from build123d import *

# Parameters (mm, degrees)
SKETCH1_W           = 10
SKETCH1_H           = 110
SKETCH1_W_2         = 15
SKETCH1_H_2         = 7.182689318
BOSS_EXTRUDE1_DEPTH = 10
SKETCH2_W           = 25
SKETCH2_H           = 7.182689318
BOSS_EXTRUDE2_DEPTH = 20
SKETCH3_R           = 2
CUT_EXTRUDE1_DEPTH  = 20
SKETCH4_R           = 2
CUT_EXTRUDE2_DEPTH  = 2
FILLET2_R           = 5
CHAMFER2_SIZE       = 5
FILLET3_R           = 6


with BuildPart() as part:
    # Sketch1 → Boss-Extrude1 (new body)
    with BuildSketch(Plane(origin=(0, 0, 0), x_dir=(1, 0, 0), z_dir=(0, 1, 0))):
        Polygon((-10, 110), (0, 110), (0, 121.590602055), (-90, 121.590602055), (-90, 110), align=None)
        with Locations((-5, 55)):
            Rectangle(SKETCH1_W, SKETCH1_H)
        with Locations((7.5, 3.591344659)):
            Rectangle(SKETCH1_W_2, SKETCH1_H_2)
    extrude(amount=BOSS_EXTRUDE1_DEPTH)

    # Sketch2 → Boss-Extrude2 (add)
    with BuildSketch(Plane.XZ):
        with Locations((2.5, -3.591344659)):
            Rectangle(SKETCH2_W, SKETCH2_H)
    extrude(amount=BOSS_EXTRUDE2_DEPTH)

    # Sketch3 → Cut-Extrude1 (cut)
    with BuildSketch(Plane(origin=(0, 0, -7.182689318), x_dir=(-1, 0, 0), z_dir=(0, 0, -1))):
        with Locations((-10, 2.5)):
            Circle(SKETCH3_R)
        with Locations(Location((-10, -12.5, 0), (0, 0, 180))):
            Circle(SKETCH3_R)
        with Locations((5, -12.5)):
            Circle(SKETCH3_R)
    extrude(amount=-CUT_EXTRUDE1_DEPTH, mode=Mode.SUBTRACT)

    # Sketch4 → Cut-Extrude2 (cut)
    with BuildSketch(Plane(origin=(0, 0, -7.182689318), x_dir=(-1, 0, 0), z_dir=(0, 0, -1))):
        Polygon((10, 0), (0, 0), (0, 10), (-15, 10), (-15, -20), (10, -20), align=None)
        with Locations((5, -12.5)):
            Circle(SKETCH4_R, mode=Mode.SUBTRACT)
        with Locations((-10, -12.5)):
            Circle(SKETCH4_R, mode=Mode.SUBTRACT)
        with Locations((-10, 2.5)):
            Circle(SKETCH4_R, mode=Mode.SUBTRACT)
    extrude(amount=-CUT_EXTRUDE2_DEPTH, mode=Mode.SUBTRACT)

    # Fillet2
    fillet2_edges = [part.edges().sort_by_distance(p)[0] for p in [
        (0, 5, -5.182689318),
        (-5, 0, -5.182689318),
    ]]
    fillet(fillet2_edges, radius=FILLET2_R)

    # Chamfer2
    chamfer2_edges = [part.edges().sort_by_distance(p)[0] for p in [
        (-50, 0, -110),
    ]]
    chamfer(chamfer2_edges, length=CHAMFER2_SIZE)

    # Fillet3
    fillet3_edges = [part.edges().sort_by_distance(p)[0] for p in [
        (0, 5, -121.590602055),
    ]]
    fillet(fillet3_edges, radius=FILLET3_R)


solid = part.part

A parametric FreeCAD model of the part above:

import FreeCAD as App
import Part
import Sketcher


def edges_at(feature, points):
    """Names of the edges that pass closest to the given points."""
    edges = feature.Shape.Edges
    near = lambda p: min(range(len(edges)), key=lambda i: edges[i].distToShape(Part.Vertex(*p))[0])
    return sorted({f"Edge{near(p) + 1}" for p in points})

doc = App.newDocument("Part")
params = doc.addObject("Spreadsheet::Sheet", "Params")
for row, (alias, value) in enumerate([
    ("sketch1_width", "90 mm"),
    ("sketch1_width2", "80 mm"),
    ("sketch1_width3", "25 mm"),
    ("sketch1_height", "110 mm"),
    ("pad1_length", "10 mm"),
    ("sketch2_width", "25 mm"),
    ("pad2_length", "20 mm"),
    ("sketch3_diameter", "4 mm"),
    ("pocket1_length", "20 mm"),
    ("sketch4_diameter", "4 mm"),
    ("sketch4_width", "10 mm"),
    ("sketch4_width2", "15 mm"),
    ("sketch4_height", "30 mm"),
    ("pocket2_length", "2 mm"),
    ("fillet_radius", "5 mm"),
    ("chamfer_size", "5 mm"),
    ("fillet2_radius", "6 mm"),
], start=1):
    params.set(f"A{row}", alias)
    params.set(f"B{row}", "=" + value)
    params.setAlias(f"B{row}", alias)

body = doc.addObject("PartDesign::Body", "Body")

sketch1 = body.newObject("Sketcher::SketchObject", "Sketch")
sketch1.AttachmentSupport = (doc.getObject("XZ_Plane"), [""])
sketch1.MapMode = "FlatFace"
sketch1.addGeometry([
    Part.LineSegment(App.Vector(0, -121.590602, 0), App.Vector(-90, -121.590602, 0)),
    Part.LineSegment(App.Vector(-90, -121.590602, 0), App.Vector(-90, -110, 0)),
    Part.LineSegment(App.Vector(-90, -110, 0), App.Vector(-10, -110, 0)),
    Part.LineSegment(App.Vector(-10, -110, 0), App.Vector(-10, 0, 0)),
    Part.LineSegment(App.Vector(-10, 0, 0), App.Vector(15, 0, 0)),
    Part.LineSegment(App.Vector(15, 0, 0), App.Vector(15, -7.182689, 0)),
    Part.LineSegment(App.Vector(15, -7.182689, 0), App.Vector(0, -7.182689, 0)),
    Part.LineSegment(App.Vector(0, -7.182689, 0), App.Vector(0, -121.590602, 0)),
], False)
sketch1.addConstraint([
    Sketcher.Constraint("Coincident", 0, 2, 1, 1),
    Sketcher.Constraint("Coincident", 1, 2, 2, 1),
    Sketcher.Constraint("Coincident", 2, 2, 3, 1),
    Sketcher.Constraint("Coincident", 3, 2, 4, 1),
    Sketcher.Constraint("Coincident", 4, 2, 5, 1),
    Sketcher.Constraint("Coincident", 5, 2, 6, 1),
    Sketcher.Constraint("Coincident", 6, 2, 7, 1),
    Sketcher.Constraint("Coincident", 7, 2, 0, 1),
    Sketcher.Constraint("Horizontal", 0),
    Sketcher.Constraint("Vertical", 1),
    Sketcher.Constraint("Horizontal", 2),
    Sketcher.Constraint("Vertical", 3),
    Sketcher.Constraint("Horizontal", 4),
    Sketcher.Constraint("Vertical", 5),
    Sketcher.Constraint("Horizontal", 6),
    Sketcher.Constraint("Vertical", 7),
    Sketcher.Constraint("PointOnObject", 3, 2, -1),
    Sketcher.Constraint("PointOnObject", 6, 2, -2),
    Sketcher.Constraint("DistanceX", 0, 2, 0, 1, 90.0),
    Sketcher.Constraint("DistanceX", 2, 1, 2, 2, 80.0),
    Sketcher.Constraint("DistanceX", 4, 1, 4, 2, 25.0),
    Sketcher.Constraint("DistanceY", 3, 1, 3, 2, 110.0),
    Sketcher.Constraint("DistanceY", 5, 2, 5, 1, 7.182689),
    Sketcher.Constraint("DistanceY", 1, 1, 1, 2, 11.590602),
])
sketch1.setExpression("Constraints[18]", "Params.sketch1_width")
sketch1.setExpression("Constraints[19]", "Params.sketch1_width2")
sketch1.setExpression("Constraints[20]", "Params.sketch1_width3")
sketch1.setExpression("Constraints[21]", "Params.sketch1_height")
pad1 = body.newObject("PartDesign::Pad", "Pad")
pad1.Profile = sketch1
pad1.setExpression("Length", "Params.pad1_length")
pad1.Reversed = True

sketch2 = body.newObject("Sketcher::SketchObject", "Sketch001")
sketch2.AttachmentSupport = (doc.getObject("XZ_Plane"), [""])
sketch2.MapMode = "FlatFace"
sketch2.addGeometry([
    Part.LineSegment(App.Vector(-10, 0, 0), App.Vector(-10, -7.182689, 0)),
    Part.LineSegment(App.Vector(-10, -7.182689, 0), App.Vector(15, -7.182689, 0)),
    Part.LineSegment(App.Vector(15, -7.182689, 0), App.Vector(15, 0, 0)),
    Part.LineSegment(App.Vector(15, 0, 0), App.Vector(-10, 0, 0)),
], False)
sketch2.addConstraint([
    Sketcher.Constraint("Coincident", 0, 2, 1, 1),
    Sketcher.Constraint("Coincident", 1, 2, 2, 1),
    Sketcher.Constraint("Coincident", 2, 2, 3, 1),
    Sketcher.Constraint("Coincident", 3, 2, 0, 1),
    Sketcher.Constraint("Vertical", 0),
    Sketcher.Constraint("Horizontal", 1),
    Sketcher.Constraint("Vertical", 2),
    Sketcher.Constraint("Horizontal", 3),
    Sketcher.Constraint("PointOnObject", 2, 2, -1),
    Sketcher.Constraint("DistanceX", 1, 1, 1, 2, 25.0),
    Sketcher.Constraint("DistanceX", 0, 2, -1, 1, 10.0),
    Sketcher.Constraint("DistanceY", 0, 2, 0, 1, 7.182689),
])
sketch2.setExpression("Constraints[9]", "Params.sketch2_width")
pad2 = body.newObject("PartDesign::Pad", "Pad001")
pad2.Profile = sketch2
pad2.setExpression("Length", "Params.pad2_length")

sketch3 = body.newObject("Sketcher::SketchObject", "Sketch002")
sketch3.AttachmentSupport = (doc.getObject("XY_Plane"), [""])
sketch3.MapMode = "FlatFace"
sketch3.AttachmentOffset = App.Placement(App.Vector(0, 0, -7.182689), App.Rotation())
sketch3.addGeometry([
    Part.Circle(App.Vector(10, 2.5, 0), App.Vector(0, 0, 1), 2),
    Part.Circle(App.Vector(10, -12.5, 0), App.Vector(0, 0, 1), 2),
    Part.Circle(App.Vector(-5, -12.5, 0), App.Vector(0, 0, 1), 2),
], False)
sketch3.addConstraint([
    Sketcher.Constraint("Equal", 0, 1),
    Sketcher.Constraint("Equal", 1, 2),
    Sketcher.Constraint("Horizontal", 1, 3, 2, 3),
    Sketcher.Constraint("Vertical", 0, 3, 1, 3),
    Sketcher.Constraint("Diameter", 0, 4.0),
    Sketcher.Constraint("DistanceX", -1, 1, 0, 3, 10.0),
    Sketcher.Constraint("DistanceX", 2, 3, -1, 1, 5.0),
    Sketcher.Constraint("DistanceY", 1, 3, 0, 3, 15.0),
    Sketcher.Constraint("DistanceY", -1, 1, 0, 3, 2.5),
])
sketch3.setExpression("Constraints[4]", "Params.sketch3_diameter")
pocket1 = body.newObject("PartDesign::Pocket", "Pocket")
pocket1.Profile = sketch3
pocket1.setExpression("Length", "Params.pocket1_length")
pocket1.Reversed = True

sketch4 = body.newObject("Sketcher::SketchObject", "Sketch003")
sketch4.AttachmentSupport = (doc.getObject("XY_Plane"), [""])
sketch4.MapMode = "FlatFace"
sketch4.AttachmentOffset = App.Placement(App.Vector(0, 0, -7.182689), App.Rotation())
sketch4.addGeometry([
    Part.LineSegment(App.Vector(-10, 0, 0), App.Vector(0, 0, 0)),
    Part.LineSegment(App.Vector(0, 0, 0), App.Vector(0, 10, 0)),
    Part.LineSegment(App.Vector(0, 10, 0), App.Vector(15, 10, 0)),
    Part.LineSegment(App.Vector(15, 10, 0), App.Vector(15, -20, 0)),
    Part.LineSegment(App.Vector(15, -20, 0), App.Vector(-10, -20, 0)),
    Part.LineSegment(App.Vector(-10, -20, 0), App.Vector(-10, 0, 0)),
    Part.Circle(App.Vector(10, -12.5, 0), App.Vector(0, 0, 1), 2),
    Part.Circle(App.Vector(-5, -12.5, 0), App.Vector(0, 0, 1), 2),
    Part.Circle(App.Vector(10, 2.5, 0), App.Vector(0, 0, 1), 2),
], False)
sketch4.addConstraint([
    Sketcher.Constraint("Coincident", 0, 2, 1, 1),
    Sketcher.Constraint("Coincident", 1, 2, 2, 1),
    Sketcher.Constraint("Coincident", 2, 2, 3, 1),
    Sketcher.Constraint("Coincident", 3, 2, 4, 1),
    Sketcher.Constraint("Coincident", 4, 2, 5, 1),
    Sketcher.Constraint("Coincident", 5, 2, 0, 1),
    Sketcher.Constraint("Horizontal", 0),
    Sketcher.Constraint("Vertical", 1),
    Sketcher.Constraint("Horizontal", 2),
    Sketcher.Constraint("Vertical", 3),
    Sketcher.Constraint("Horizontal", 4),
    Sketcher.Constraint("Vertical", 5),
    Sketcher.Constraint("Coincident", 0, 2, -1, 1),
    Sketcher.Constraint("Equal", 6, 7),
    Sketcher.Constraint("Equal", 7, 8),
    Sketcher.Constraint("Horizontal", 6, 3, 7, 3),
    Sketcher.Constraint("Vertical", 6, 3, 8, 3),
    Sketcher.Constraint("Equal", 0, 1),
    Sketcher.Constraint("Diameter", 6, 4.0),
    Sketcher.Constraint("DistanceX", 0, 1, 0, 2, 10.0),
    Sketcher.Constraint("DistanceX", 2, 1, 2, 2, 15.0),
    Sketcher.Constraint("DistanceY", 3, 2, 3, 1, 30.0),
    Sketcher.Constraint("DistanceX", -1, 1, 6, 3, 10.0),
    Sketcher.Constraint("DistanceX", 7, 3, -1, 1, 5.0),
    Sketcher.Constraint("DistanceY", 6, 3, 8, 3, 15.0),
    Sketcher.Constraint("DistanceY", 6, 3, -1, 1, 12.5),
])
sketch4.setExpression("Constraints[18]", "Params.sketch4_diameter")
sketch4.setExpression("Constraints[19]", "Params.sketch4_width")
sketch4.setExpression("Constraints[20]", "Params.sketch4_width2")
sketch4.setExpression("Constraints[21]", "Params.sketch4_height")
pocket2 = body.newObject("PartDesign::Pocket", "Pocket001")
pocket2.Profile = sketch4
pocket2.setExpression("Length", "Params.pocket2_length")
pocket2.Reversed = True
doc.recompute()

fillet = body.newObject("PartDesign::Fillet", "Fillet")
fillet.Base = (pocket2, edges_at(pocket2, [(0, 5, -5.183), (-5, 0, -5.183)]))
fillet.setExpression("Radius", "Params.fillet_radius")
doc.recompute()

chamfer = body.newObject("PartDesign::Chamfer", "Chamfer")
chamfer.Base = (fillet, edges_at(fillet, [(-50, 0, -110)]))
chamfer.setExpression("Size", "Params.chamfer_size")
doc.recompute()

fillet2 = body.newObject("PartDesign::Fillet", "Fillet001")
fillet2.Base = (chamfer, edges_at(chamfer, [(0, 5, -121.591)]))
fillet2.setExpression("Radius", "Params.fillet2_radius")

doc.recompute()
